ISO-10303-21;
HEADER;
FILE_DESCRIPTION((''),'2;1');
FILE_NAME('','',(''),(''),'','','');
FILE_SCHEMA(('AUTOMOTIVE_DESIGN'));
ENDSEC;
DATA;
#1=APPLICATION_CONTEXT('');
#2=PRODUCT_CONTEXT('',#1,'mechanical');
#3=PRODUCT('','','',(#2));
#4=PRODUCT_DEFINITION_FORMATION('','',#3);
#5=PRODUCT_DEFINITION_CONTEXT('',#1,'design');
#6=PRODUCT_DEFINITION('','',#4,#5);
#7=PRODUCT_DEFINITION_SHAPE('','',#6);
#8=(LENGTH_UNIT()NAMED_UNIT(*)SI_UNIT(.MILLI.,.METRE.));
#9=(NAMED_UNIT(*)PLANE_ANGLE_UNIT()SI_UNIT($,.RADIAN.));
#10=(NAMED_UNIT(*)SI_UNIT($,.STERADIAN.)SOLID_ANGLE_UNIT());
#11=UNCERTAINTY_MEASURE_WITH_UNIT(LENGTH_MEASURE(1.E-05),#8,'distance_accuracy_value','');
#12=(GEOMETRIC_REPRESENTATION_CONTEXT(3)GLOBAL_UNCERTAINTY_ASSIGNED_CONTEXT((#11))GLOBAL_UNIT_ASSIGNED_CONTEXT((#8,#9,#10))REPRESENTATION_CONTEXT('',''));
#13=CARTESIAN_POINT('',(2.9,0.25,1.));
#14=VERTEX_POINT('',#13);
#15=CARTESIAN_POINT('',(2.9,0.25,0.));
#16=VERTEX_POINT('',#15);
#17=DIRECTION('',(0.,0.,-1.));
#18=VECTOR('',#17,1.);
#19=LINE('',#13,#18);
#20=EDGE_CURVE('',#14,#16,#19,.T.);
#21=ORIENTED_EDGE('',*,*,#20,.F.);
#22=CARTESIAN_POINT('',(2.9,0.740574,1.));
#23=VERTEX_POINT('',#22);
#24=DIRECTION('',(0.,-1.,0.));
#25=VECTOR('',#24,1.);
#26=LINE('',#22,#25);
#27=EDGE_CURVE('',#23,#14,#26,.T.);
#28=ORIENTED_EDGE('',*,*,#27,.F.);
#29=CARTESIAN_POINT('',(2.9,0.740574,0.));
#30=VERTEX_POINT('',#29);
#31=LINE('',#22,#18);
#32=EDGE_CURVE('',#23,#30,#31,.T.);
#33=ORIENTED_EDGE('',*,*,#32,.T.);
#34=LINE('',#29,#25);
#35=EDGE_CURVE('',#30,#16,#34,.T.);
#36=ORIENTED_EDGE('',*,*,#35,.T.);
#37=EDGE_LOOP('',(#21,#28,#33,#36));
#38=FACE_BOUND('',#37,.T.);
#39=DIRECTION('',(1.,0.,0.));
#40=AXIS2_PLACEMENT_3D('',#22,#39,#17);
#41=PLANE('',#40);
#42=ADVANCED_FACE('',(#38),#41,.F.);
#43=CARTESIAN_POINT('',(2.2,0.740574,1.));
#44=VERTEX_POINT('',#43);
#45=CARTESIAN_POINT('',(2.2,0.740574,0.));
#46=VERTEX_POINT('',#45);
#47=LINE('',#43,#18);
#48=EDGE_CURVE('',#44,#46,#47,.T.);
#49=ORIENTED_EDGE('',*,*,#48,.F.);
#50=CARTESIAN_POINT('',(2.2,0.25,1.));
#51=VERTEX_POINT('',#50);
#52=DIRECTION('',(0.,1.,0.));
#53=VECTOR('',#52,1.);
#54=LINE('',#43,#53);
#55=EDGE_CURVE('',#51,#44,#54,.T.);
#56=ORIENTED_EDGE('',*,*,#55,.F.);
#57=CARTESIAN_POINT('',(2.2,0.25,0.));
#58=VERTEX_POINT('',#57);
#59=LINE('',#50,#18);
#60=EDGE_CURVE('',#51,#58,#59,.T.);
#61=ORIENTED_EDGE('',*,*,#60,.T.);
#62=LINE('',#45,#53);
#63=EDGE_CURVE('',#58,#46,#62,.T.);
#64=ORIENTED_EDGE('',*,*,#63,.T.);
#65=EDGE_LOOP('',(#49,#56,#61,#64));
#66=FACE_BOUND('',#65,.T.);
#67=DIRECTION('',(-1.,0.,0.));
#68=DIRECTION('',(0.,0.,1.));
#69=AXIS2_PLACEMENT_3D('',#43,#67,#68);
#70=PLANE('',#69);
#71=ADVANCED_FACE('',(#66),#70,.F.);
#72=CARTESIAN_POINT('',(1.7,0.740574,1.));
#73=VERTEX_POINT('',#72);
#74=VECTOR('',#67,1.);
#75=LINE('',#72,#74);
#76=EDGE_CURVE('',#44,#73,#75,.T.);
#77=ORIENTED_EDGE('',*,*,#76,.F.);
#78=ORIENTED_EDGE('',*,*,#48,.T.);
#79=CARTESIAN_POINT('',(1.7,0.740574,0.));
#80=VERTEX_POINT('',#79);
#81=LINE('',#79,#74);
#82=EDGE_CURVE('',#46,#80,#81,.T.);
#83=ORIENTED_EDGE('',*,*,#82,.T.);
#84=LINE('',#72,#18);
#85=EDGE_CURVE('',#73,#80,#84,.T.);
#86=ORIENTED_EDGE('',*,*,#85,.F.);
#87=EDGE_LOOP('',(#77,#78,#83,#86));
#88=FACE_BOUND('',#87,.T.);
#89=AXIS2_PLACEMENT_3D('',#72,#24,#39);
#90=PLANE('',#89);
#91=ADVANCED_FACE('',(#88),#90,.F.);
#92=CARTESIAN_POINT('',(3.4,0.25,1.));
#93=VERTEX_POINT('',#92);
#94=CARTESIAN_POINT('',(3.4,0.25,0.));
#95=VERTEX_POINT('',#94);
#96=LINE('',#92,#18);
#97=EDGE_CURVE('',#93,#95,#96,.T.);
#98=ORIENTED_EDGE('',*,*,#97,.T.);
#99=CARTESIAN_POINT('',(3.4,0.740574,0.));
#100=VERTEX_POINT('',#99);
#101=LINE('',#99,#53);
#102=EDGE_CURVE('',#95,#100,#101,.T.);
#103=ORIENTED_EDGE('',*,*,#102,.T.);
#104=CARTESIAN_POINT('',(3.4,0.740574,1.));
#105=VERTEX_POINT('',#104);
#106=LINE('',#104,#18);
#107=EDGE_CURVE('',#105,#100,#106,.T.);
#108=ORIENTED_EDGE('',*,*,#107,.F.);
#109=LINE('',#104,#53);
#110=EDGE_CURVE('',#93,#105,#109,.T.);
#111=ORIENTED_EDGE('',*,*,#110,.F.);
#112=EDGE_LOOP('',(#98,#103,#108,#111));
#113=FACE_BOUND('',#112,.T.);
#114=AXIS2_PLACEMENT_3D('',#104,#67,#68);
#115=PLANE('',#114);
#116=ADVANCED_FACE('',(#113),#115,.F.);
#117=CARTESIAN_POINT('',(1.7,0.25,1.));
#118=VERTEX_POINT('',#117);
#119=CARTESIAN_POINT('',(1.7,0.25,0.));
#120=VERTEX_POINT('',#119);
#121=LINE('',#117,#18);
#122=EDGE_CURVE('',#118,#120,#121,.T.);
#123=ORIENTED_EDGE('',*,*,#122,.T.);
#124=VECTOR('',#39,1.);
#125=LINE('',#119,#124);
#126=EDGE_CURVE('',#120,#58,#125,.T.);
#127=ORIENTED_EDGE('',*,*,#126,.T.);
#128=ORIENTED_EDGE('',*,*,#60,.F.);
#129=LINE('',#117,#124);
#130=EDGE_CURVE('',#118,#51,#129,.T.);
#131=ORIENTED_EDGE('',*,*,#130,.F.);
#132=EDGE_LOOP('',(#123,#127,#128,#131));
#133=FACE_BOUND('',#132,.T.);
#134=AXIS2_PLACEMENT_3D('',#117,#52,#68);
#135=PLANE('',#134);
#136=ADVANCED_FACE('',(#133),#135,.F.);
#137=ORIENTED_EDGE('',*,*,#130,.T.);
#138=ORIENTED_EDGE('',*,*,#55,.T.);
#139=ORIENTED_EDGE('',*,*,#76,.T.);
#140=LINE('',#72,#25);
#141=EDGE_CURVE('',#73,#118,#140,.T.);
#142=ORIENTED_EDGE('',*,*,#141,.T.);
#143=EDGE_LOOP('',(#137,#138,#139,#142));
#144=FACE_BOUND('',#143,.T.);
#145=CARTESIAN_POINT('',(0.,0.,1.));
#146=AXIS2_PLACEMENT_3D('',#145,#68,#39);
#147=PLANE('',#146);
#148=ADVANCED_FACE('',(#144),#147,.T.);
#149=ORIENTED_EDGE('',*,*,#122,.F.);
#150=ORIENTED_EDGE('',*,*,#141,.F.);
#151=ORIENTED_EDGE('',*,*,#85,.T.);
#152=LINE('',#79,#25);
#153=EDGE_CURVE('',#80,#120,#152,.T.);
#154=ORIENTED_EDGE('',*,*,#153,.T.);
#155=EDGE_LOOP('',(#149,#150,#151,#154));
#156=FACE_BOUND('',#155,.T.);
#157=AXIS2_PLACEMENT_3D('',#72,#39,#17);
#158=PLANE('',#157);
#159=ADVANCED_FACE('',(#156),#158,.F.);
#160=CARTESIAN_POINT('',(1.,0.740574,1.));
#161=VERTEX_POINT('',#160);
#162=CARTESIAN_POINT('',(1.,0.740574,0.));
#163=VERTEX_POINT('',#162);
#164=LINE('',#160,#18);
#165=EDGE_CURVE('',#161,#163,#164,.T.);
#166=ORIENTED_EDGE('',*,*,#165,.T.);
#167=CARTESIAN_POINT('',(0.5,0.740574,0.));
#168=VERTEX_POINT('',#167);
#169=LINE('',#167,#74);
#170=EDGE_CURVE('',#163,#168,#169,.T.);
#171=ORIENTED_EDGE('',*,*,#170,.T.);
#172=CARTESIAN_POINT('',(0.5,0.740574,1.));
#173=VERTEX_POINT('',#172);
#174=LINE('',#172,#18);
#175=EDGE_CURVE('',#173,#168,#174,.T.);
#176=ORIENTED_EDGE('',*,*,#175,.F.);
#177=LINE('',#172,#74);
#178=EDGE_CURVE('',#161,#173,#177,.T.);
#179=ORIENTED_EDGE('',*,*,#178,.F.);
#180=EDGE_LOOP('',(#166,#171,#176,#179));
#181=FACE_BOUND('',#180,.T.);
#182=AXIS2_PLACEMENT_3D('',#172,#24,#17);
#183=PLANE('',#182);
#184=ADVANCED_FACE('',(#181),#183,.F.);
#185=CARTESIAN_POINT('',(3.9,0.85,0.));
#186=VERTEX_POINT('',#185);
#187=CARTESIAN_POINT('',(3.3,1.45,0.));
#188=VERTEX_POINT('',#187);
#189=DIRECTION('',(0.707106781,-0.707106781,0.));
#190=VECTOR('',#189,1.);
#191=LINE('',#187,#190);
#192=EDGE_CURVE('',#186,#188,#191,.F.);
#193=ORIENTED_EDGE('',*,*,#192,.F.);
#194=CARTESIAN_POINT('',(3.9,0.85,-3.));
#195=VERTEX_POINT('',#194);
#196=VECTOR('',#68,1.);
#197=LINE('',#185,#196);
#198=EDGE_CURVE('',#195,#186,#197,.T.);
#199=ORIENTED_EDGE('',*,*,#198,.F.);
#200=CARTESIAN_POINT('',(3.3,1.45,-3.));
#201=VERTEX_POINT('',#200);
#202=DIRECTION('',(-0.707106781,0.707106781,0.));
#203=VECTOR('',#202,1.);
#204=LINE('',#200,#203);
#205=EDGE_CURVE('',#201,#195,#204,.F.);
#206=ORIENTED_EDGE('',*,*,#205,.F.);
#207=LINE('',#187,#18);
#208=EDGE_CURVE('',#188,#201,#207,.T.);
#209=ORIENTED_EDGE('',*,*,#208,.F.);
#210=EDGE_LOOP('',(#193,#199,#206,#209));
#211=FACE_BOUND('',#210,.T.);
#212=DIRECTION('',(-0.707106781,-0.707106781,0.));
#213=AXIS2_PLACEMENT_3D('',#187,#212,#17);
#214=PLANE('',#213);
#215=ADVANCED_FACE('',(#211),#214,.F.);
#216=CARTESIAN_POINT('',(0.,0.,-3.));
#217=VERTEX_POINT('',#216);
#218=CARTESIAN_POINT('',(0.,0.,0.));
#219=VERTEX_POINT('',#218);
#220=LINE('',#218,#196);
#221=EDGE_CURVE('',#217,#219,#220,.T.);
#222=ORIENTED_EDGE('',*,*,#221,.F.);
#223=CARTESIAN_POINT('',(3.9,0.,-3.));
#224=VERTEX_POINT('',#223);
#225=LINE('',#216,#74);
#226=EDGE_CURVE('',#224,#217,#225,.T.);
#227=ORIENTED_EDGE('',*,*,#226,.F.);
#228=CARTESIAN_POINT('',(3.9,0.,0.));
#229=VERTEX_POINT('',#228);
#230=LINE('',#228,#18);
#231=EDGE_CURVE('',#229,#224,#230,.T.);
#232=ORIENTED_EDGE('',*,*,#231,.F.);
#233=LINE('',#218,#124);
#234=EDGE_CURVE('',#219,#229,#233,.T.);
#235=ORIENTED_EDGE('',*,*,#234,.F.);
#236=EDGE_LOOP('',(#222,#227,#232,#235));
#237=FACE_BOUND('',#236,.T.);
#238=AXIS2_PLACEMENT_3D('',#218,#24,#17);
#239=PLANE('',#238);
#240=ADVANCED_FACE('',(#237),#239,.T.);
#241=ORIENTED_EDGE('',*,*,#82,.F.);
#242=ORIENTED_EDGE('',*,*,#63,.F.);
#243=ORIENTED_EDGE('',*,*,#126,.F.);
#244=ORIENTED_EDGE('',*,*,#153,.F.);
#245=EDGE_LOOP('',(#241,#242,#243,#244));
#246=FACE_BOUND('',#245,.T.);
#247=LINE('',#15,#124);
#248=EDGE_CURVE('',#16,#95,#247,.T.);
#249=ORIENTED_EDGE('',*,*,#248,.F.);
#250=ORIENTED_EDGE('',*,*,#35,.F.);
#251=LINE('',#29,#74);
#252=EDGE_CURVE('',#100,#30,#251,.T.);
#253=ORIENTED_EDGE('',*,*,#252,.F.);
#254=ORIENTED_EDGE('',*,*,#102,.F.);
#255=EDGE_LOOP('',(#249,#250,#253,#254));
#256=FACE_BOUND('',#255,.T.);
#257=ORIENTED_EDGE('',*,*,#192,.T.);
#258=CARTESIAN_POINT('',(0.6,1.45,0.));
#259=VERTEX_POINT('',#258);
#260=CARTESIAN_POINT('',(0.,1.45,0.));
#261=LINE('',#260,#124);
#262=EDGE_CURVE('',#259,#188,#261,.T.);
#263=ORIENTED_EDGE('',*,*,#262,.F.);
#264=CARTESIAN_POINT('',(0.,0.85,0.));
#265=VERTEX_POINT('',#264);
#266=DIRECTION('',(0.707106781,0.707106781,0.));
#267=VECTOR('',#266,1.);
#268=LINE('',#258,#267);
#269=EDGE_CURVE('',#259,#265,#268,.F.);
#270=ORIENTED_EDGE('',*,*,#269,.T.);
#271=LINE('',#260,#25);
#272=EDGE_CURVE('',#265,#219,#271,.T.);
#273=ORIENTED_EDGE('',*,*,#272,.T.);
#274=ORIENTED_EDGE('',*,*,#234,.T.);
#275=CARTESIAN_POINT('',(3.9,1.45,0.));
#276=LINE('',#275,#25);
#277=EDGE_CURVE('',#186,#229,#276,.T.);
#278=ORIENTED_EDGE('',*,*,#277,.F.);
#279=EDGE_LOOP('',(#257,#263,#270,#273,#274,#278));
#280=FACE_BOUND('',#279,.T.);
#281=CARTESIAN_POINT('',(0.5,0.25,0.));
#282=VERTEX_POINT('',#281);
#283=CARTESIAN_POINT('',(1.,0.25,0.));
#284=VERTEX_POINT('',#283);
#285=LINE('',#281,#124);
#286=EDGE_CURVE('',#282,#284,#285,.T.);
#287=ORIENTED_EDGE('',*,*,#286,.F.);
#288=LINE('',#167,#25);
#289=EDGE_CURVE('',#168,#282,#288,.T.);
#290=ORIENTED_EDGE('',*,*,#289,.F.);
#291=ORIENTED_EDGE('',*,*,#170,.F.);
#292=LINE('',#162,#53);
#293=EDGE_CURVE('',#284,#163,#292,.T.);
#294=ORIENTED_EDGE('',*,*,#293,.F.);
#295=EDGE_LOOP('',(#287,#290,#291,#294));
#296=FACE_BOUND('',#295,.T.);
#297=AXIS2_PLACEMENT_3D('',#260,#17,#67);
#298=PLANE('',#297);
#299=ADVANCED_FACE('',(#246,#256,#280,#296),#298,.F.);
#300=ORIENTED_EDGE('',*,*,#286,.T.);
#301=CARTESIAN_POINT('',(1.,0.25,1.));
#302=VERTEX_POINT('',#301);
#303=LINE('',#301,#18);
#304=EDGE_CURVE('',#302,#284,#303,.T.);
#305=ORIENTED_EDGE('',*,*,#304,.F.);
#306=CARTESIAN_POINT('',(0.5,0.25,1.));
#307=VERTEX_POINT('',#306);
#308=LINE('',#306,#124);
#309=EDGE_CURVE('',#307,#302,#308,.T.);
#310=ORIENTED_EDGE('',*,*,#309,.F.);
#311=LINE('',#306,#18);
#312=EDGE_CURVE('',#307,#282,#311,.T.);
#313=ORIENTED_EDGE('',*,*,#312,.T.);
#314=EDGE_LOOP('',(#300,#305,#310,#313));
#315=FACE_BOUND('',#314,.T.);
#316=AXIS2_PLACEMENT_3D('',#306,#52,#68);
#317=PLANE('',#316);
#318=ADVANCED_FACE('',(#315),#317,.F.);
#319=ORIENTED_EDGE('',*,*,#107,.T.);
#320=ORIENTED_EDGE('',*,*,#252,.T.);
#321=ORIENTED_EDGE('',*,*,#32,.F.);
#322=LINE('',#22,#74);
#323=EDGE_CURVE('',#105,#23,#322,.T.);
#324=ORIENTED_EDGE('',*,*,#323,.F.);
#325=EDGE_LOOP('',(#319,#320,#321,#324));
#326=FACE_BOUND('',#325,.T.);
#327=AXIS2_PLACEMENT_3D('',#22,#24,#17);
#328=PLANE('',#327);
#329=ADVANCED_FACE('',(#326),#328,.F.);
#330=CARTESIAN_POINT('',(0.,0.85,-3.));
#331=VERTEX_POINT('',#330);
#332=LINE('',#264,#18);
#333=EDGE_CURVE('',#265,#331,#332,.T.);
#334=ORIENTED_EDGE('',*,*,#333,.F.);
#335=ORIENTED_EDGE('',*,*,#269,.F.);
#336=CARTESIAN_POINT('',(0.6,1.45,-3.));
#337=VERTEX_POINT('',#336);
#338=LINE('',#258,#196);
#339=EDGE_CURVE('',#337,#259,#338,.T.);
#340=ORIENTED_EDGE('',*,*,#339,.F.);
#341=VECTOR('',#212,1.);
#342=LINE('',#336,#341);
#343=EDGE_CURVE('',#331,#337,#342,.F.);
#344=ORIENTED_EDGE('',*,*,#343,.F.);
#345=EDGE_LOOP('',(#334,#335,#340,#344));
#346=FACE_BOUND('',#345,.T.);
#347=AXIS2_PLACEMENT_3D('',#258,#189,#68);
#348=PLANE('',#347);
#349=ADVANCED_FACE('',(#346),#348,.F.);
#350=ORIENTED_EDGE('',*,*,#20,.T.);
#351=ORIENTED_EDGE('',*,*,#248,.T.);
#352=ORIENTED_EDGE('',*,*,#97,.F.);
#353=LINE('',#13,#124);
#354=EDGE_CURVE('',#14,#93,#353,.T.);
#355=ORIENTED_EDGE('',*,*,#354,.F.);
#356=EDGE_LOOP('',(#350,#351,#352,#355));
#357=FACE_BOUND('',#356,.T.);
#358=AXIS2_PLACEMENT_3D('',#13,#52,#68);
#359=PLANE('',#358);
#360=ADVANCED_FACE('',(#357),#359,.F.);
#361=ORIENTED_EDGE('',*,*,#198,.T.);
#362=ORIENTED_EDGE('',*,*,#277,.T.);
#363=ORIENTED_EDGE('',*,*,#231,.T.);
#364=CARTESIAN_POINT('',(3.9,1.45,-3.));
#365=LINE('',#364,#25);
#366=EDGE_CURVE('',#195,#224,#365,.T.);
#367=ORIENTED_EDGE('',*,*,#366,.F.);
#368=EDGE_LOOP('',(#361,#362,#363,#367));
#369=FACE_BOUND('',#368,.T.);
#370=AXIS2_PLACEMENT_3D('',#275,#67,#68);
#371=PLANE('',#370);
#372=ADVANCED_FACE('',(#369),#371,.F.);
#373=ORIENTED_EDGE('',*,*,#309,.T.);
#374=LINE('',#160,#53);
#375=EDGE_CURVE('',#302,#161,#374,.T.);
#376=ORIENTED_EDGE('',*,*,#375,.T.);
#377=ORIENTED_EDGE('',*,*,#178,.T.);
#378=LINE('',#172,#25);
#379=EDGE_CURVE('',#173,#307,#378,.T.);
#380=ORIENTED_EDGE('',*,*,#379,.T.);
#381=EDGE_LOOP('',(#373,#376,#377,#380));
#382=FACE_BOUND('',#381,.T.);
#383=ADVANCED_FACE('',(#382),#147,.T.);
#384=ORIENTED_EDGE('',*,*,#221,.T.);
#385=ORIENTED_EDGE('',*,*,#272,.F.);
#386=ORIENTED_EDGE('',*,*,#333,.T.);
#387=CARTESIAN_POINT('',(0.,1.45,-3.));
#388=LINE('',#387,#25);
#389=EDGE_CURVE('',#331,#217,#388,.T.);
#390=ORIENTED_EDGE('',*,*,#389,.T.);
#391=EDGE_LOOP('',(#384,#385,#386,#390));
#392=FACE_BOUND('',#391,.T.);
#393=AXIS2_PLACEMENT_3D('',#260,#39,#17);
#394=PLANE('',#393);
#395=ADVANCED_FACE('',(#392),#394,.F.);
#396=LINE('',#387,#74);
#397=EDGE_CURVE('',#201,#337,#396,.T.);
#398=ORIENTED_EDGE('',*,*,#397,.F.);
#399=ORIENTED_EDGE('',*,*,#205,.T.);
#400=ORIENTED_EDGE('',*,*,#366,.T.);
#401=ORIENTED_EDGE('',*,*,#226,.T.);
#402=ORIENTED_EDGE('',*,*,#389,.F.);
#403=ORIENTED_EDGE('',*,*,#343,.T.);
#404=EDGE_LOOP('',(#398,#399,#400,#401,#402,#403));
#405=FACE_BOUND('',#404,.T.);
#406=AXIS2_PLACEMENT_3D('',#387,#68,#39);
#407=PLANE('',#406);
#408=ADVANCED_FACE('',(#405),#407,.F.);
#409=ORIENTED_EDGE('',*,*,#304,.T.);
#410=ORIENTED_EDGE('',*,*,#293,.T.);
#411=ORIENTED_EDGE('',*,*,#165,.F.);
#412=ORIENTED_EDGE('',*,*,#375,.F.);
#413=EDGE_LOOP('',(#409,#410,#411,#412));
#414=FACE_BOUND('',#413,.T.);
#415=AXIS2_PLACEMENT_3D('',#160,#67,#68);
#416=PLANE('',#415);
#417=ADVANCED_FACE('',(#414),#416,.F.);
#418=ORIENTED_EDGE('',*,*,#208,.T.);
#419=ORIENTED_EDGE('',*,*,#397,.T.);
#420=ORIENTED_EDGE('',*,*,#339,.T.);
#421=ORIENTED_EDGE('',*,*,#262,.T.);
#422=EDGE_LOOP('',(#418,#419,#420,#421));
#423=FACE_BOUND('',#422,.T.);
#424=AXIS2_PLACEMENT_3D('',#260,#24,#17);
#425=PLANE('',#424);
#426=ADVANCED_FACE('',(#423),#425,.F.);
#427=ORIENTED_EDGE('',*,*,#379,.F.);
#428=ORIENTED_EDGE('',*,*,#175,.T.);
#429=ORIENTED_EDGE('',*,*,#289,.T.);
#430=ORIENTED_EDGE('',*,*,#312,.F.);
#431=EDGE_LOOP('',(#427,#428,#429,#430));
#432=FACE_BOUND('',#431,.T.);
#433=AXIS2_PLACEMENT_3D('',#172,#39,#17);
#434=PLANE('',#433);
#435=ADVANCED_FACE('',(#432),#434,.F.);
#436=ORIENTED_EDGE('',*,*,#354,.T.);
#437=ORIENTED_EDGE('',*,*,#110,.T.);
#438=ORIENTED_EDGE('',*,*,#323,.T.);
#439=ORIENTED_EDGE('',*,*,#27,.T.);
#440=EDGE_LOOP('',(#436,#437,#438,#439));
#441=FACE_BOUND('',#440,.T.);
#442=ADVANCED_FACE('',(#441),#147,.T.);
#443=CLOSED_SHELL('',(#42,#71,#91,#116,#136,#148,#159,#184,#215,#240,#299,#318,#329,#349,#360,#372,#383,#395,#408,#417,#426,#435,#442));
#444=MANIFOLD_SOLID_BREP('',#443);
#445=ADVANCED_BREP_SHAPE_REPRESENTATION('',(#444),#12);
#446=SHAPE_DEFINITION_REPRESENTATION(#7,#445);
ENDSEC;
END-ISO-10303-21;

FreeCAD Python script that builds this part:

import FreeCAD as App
import Part
import Sketcher
from FreeCAD import Vector


def edges_at(feature, points):
    """Names of the edges that pass closest to the given points."""
    edges = feature.Shape.Edges
    near = lambda p: min(range(len(edges)), key=lambda i: edges[i].distToShape(Part.Vertex(*p))[0])
    return sorted({f"Edge{near(p) + 1}" for p in points})


def add_polygon(sketch, points):
    """Adds a closed chain of lines whose ends are joined by coincident constraints."""
    first, n = sketch.GeometryCount, len(points)
    for a, b in zip(points, points[1:] + points[:1]):
        sketch.addGeometry(Part.LineSegment(App.Vector(*a, 0), App.Vector(*b, 0)), False)
    for i in range(n):
        sketch.addConstraint(Sketcher.Constraint("Coincident", first + i, 2, first + (i + 1) % n, 1))

doc = App.newDocument("Part")
params = doc.addObject("Spreadsheet::Sheet", "Params")
for row, (alias, value) in enumerate([
    ("sketch1_height", "3 mm"),
    ("sketch1_width", "3.9 mm"),
    ("pad1_length", "1.45 mm"),
    ("chamfer_size", "0.6 mm"),
    ("sketch2_width", "0.5 mm"),
    ("pad2_length", "1 mm"),
], start=1):
    params.set(f"A{row}", alias)
    params.set(f"B{row}", "=" + value)
    params.setAlias(f"B{row}", alias)

body = doc.addObject("PartDesign::Body", "Body")

sketch1 = body.newObject("Sketcher::SketchObject", "Sketch")
sketch1.AttachmentSupport = (doc.getObject("XZ_Plane"), [""])
sketch1.MapMode = "FlatFace"
add_polygon(sketch1, [(0, -3), (0, 0), (3.9, 0), (3.9, -3)])
sketch1.addConstraint([
    Sketcher.Constraint("Vertical", 0),
    Sketcher.Constraint("Horizontal", 1),
    Sketcher.Constraint("Vertical", 2),
    Sketcher.Constraint("Horizontal", 3),
    Sketcher.Constraint("Coincident", 0, 2, -1, 1),
    Sketcher.Constraint("DistanceY", 0, 1, 0, 2, 3.0),
    Sketcher.Constraint("DistanceX", 1, 1, 1, 2, 3.9),
])
sketch1.setExpression("Constraints[9]", "Params.sketch1_height")
sketch1.setExpression("Constraints[10]", "Params.sketch1_width")
pad1 = body.newObject("PartDesign::Pad", "Pad")
pad1.Profile = sketch1
pad1.setExpression("Length", "Params.pad1_length")
pad1.Reversed = True
doc.recompute()

chamfer = body.newObject("PartDesign::Chamfer", "Chamfer")
chamfer.Base = (pad1, edges_at(pad1, [(3.9, 1.45, -1.5), (0, 1.45, -1.5)]))
chamfer.setExpression("Size", "Params.chamfer_size")

sketch2 = body.newObject("Sketcher::SketchObject", "Sketch001")
sketch2.AttachmentSupport = (doc.getObject("XY_Plane"), [""])
sketch2.MapMode = "FlatFace"
add_polygon(sketch2, [(0.5, 0.740574), (0.5, 0.25), (1, 0.25), (1, 0.740574)])
add_polygon(sketch2, [(1.7, 0.740574), (1.7, 0.25), (2.2, 0.25), (2.2, 0.740574)])
add_polygon(sketch2, [(2.9, 0.740574), (2.9, 0.25), (3.4, 0.25), (3.4, 0.740574)])
sketch2.addConstraint([
    Sketcher.Constraint("Vertical", 0),
    Sketcher.Constraint("Horizontal", 1),
    Sketcher.Constraint("Vertical", 2),
    Sketcher.Constraint("Horizontal", 3),
    Sketcher.Constraint("Vertical", 4),
    Sketcher.Constraint("Horizontal", 5),
    Sketcher.Constraint("Vertical", 6),
    Sketcher.Constraint("Horizontal", 7),
    Sketcher.Constraint("Vertical", 8),
    Sketcher.Constraint("Horizontal", 9),
    Sketcher.Constraint("Vertical", 10),
    Sketcher.Constraint("Horizontal", 11),
    Sketcher.Constraint("Horizontal", 1, 2, 4, 2),
    Sketcher.Constraint("Horizontal", 3, 2, 6, 2),
    Sketcher.Constraint("Horizontal", 5, 2, 8, 2),
    Sketcher.Constraint("Horizontal", 7, 2, 10, 2),
    Sketcher.Constraint("Equal", 3, 5),
    Sketcher.Constraint("Equal", 7, 9),
    Sketcher.Constraint("DistanceX", 1, 1, 1, 2, 0.5),
    Sketcher.Constraint("DistanceX", -1, 1, 1, 2, 1.0),
    Sketcher.Constraint("DistanceX", -1, 1, 4, 2, 1.7),
    Sketcher.Constraint("DistanceX", -1, 1, 8, 2, 2.9),
    Sketcher.Constraint("DistanceY", -1, 1, 0, 2, 0.25),
    Sketcher.Constraint("DistanceY", 0, 2, 0, 1, 0.490574),
])
sketch2.setExpression("Constraints[30]", "Params.sketch2_width")
pad2 = body.newObject("PartDesign::Pad", "Pad001")
pad2.Profile = sketch2
pad2.setExpression("Length", "Params.pad2_length")

doc.recompute()
